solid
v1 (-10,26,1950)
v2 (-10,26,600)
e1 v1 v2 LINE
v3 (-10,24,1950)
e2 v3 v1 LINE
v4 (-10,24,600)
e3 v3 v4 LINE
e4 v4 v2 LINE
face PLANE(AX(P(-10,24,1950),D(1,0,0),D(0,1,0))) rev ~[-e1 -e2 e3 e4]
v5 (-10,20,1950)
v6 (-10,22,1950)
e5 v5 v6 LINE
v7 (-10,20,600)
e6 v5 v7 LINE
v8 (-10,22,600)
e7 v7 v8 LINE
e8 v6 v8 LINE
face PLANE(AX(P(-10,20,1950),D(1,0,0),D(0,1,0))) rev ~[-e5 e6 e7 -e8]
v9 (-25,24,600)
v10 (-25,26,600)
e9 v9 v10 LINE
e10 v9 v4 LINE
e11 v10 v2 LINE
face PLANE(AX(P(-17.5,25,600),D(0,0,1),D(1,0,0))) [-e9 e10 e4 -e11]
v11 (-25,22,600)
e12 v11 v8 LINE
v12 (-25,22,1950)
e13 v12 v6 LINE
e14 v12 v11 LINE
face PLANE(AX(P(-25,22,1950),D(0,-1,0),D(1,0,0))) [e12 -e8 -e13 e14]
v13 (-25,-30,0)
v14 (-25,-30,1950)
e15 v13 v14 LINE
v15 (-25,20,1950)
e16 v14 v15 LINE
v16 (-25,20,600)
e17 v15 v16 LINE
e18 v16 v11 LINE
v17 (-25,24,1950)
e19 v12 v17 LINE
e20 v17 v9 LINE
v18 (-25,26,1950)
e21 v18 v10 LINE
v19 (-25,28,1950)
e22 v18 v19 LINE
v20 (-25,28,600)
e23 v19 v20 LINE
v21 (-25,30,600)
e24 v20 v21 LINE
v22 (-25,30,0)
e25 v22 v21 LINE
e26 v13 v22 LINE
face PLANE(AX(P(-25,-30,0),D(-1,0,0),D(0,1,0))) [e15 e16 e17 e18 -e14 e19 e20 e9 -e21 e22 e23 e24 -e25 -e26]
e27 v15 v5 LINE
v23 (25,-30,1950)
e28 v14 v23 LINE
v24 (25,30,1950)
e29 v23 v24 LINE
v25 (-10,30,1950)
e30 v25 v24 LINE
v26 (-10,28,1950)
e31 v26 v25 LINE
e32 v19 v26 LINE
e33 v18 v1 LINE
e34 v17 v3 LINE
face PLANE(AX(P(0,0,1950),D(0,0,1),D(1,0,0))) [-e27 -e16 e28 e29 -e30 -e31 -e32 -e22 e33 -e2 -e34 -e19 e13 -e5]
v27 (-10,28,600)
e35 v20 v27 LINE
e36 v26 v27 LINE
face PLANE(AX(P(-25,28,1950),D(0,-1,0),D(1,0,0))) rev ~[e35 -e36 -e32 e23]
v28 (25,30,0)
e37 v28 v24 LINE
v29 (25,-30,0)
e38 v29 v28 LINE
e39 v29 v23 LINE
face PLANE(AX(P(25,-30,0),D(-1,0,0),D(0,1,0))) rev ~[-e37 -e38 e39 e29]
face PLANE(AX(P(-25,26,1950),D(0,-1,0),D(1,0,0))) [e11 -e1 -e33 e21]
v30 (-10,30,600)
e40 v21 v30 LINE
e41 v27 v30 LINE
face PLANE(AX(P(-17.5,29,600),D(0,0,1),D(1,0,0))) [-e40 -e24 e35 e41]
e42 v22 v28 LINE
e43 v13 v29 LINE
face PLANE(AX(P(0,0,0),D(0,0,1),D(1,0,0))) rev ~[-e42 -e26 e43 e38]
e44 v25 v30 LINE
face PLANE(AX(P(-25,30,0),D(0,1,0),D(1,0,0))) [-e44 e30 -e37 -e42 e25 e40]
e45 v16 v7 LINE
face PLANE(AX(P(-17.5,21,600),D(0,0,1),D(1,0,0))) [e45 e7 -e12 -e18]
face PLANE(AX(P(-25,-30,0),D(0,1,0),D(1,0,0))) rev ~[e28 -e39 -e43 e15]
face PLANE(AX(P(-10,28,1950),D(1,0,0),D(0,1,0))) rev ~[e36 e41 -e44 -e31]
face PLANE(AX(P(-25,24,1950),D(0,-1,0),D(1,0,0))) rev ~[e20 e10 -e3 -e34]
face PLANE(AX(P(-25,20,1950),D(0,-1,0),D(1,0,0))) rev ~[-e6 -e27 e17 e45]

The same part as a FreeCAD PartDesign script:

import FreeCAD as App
import Part
import Sketcher

V = App.Vector


def add_polygon(sketch, points):
    """Adds a closed chain of lines whose ends are joined by coincident constraints."""
    first, n = sketch.GeometryCount, len(points)
    for a, b in zip(points, points[1:] + points[:1]):
        sketch.addGeometry(Part.LineSegment(App.Vector(*a, 0), App.Vector(*b, 0)), False)
    for i in range(n):
        sketch.addConstraint(Sketcher.Constraint("Coincident", first + i, 2, first + (i + 1) % n, 1))

doc = App.newDocument("Part")
body = doc.addObject("PartDesign::Body", "Body")

# Sketch on XY plane
sketch1 = doc.addObject("Sketcher::SketchObject", "Sketch")
body.addObject(sketch1)
sketch1.AttachmentSupport = (doc.XY_Plane, [""])
sketch1.MapMode = "FlatFace"
add_polygon(sketch1, [(-25, 30), (-25, -30), (25, -30), (25, 30)])  # lines 0-3
sketch1.addConstraint([
    Sketcher.Constraint("Vertical", 0),
    Sketcher.Constraint("Horizontal", 1),
    Sketcher.Constraint("Vertical", 2),
    Sketcher.Constraint("Horizontal", 3),
    Sketcher.Constraint("Symmetric", 0, 2, 2, 2, -1, 1),
    Sketcher.Constraint("DistanceX", 1, 1, 1, 2, 50.0),
    Sketcher.Constraint("DistanceY", 0, 2, 0, 1, 60.0),
])
pad1 = doc.addObject("PartDesign::Pad", "Pad")
body.addObject(pad1)
pad1.Profile = sketch1
pad1.Length = 1950

# Sketch on XY plane
sketch2 = doc.addObject("Sketcher::SketchObject", "Sketch001")
body.addObject(sketch2)
sketch2.AttachmentSupport = (doc.XY_Plane, [""])
sketch2.MapMode = "FlatFace"
sketch2.AttachmentOffset = App.Placement(V(0, 0, 1950), App.Rotation())
add_polygon(sketch2, [(-25, 30), (-25, 28), (-10, 28), (-10, 30)])  # lines 0-3
add_polygon(sketch2, [(-25, 26), (-25, 24), (-10, 24), (-10, 26)])  # lines 4-7
add_polygon(sketch2, [(-25, 22), (-25, 20), (-10, 20), (-10, 22)])  # lines 8-11
sketch2.addConstraint([
    Sketcher.Constraint("Vertical", 0),
    Sketcher.Constraint("Horizontal", 1),
    Sketcher.Constraint("Vertical", 2),
    Sketcher.Constraint("Horizontal", 3),
    Sketcher.Constraint("Vertical", 4),
    Sketcher.Constraint("Horizontal", 5),
    Sketcher.Constraint("Vertical", 6),
    Sketcher.Constraint("Horizontal", 7),
    Sketcher.Constraint("Vertical", 8),
    Sketcher.Constraint("Horizontal", 9),
    Sketcher.Constraint("Vertical", 10),
    Sketcher.Constraint("Horizontal", 11),
    Sketcher.Constraint("Vertical", 3, 2, 4, 2),
    Sketcher.Constraint("Vertical", 2, 2, 5, 2),
    Sketcher.Constraint("Vertical", 7, 2, 8, 2),
    Sketcher.Constraint("Vertical", 6, 2, 9, 2),
    Sketcher.Constraint("Equal", 2, 4),
    Sketcher.Constraint("Equal", 6, 8),
    Sketcher.Constraint("DistanceX", 1, 1, 1, 2, 15.0),
    Sketcher.Constraint("DistanceY", 0, 2, 0, 1, 2.0),
    Sketcher.Constraint("DistanceX", 0, 2, -1, 1, 25.0),
    Sketcher.Constraint("DistanceY", -1, 1, 0, 2, 28.0),
    Sketcher.Constraint("DistanceY", -1, 1, 4, 2, 24.0),
    Sketcher.Constraint("DistanceY", -1, 1, 8, 2, 20.0),
])
pocket1 = doc.addObject("PartDesign::Pocket", "Pocket")
body.addObject(pocket1)
pocket1.Profile = sketch2
pocket1.Length = 1350

doc.recompute()
